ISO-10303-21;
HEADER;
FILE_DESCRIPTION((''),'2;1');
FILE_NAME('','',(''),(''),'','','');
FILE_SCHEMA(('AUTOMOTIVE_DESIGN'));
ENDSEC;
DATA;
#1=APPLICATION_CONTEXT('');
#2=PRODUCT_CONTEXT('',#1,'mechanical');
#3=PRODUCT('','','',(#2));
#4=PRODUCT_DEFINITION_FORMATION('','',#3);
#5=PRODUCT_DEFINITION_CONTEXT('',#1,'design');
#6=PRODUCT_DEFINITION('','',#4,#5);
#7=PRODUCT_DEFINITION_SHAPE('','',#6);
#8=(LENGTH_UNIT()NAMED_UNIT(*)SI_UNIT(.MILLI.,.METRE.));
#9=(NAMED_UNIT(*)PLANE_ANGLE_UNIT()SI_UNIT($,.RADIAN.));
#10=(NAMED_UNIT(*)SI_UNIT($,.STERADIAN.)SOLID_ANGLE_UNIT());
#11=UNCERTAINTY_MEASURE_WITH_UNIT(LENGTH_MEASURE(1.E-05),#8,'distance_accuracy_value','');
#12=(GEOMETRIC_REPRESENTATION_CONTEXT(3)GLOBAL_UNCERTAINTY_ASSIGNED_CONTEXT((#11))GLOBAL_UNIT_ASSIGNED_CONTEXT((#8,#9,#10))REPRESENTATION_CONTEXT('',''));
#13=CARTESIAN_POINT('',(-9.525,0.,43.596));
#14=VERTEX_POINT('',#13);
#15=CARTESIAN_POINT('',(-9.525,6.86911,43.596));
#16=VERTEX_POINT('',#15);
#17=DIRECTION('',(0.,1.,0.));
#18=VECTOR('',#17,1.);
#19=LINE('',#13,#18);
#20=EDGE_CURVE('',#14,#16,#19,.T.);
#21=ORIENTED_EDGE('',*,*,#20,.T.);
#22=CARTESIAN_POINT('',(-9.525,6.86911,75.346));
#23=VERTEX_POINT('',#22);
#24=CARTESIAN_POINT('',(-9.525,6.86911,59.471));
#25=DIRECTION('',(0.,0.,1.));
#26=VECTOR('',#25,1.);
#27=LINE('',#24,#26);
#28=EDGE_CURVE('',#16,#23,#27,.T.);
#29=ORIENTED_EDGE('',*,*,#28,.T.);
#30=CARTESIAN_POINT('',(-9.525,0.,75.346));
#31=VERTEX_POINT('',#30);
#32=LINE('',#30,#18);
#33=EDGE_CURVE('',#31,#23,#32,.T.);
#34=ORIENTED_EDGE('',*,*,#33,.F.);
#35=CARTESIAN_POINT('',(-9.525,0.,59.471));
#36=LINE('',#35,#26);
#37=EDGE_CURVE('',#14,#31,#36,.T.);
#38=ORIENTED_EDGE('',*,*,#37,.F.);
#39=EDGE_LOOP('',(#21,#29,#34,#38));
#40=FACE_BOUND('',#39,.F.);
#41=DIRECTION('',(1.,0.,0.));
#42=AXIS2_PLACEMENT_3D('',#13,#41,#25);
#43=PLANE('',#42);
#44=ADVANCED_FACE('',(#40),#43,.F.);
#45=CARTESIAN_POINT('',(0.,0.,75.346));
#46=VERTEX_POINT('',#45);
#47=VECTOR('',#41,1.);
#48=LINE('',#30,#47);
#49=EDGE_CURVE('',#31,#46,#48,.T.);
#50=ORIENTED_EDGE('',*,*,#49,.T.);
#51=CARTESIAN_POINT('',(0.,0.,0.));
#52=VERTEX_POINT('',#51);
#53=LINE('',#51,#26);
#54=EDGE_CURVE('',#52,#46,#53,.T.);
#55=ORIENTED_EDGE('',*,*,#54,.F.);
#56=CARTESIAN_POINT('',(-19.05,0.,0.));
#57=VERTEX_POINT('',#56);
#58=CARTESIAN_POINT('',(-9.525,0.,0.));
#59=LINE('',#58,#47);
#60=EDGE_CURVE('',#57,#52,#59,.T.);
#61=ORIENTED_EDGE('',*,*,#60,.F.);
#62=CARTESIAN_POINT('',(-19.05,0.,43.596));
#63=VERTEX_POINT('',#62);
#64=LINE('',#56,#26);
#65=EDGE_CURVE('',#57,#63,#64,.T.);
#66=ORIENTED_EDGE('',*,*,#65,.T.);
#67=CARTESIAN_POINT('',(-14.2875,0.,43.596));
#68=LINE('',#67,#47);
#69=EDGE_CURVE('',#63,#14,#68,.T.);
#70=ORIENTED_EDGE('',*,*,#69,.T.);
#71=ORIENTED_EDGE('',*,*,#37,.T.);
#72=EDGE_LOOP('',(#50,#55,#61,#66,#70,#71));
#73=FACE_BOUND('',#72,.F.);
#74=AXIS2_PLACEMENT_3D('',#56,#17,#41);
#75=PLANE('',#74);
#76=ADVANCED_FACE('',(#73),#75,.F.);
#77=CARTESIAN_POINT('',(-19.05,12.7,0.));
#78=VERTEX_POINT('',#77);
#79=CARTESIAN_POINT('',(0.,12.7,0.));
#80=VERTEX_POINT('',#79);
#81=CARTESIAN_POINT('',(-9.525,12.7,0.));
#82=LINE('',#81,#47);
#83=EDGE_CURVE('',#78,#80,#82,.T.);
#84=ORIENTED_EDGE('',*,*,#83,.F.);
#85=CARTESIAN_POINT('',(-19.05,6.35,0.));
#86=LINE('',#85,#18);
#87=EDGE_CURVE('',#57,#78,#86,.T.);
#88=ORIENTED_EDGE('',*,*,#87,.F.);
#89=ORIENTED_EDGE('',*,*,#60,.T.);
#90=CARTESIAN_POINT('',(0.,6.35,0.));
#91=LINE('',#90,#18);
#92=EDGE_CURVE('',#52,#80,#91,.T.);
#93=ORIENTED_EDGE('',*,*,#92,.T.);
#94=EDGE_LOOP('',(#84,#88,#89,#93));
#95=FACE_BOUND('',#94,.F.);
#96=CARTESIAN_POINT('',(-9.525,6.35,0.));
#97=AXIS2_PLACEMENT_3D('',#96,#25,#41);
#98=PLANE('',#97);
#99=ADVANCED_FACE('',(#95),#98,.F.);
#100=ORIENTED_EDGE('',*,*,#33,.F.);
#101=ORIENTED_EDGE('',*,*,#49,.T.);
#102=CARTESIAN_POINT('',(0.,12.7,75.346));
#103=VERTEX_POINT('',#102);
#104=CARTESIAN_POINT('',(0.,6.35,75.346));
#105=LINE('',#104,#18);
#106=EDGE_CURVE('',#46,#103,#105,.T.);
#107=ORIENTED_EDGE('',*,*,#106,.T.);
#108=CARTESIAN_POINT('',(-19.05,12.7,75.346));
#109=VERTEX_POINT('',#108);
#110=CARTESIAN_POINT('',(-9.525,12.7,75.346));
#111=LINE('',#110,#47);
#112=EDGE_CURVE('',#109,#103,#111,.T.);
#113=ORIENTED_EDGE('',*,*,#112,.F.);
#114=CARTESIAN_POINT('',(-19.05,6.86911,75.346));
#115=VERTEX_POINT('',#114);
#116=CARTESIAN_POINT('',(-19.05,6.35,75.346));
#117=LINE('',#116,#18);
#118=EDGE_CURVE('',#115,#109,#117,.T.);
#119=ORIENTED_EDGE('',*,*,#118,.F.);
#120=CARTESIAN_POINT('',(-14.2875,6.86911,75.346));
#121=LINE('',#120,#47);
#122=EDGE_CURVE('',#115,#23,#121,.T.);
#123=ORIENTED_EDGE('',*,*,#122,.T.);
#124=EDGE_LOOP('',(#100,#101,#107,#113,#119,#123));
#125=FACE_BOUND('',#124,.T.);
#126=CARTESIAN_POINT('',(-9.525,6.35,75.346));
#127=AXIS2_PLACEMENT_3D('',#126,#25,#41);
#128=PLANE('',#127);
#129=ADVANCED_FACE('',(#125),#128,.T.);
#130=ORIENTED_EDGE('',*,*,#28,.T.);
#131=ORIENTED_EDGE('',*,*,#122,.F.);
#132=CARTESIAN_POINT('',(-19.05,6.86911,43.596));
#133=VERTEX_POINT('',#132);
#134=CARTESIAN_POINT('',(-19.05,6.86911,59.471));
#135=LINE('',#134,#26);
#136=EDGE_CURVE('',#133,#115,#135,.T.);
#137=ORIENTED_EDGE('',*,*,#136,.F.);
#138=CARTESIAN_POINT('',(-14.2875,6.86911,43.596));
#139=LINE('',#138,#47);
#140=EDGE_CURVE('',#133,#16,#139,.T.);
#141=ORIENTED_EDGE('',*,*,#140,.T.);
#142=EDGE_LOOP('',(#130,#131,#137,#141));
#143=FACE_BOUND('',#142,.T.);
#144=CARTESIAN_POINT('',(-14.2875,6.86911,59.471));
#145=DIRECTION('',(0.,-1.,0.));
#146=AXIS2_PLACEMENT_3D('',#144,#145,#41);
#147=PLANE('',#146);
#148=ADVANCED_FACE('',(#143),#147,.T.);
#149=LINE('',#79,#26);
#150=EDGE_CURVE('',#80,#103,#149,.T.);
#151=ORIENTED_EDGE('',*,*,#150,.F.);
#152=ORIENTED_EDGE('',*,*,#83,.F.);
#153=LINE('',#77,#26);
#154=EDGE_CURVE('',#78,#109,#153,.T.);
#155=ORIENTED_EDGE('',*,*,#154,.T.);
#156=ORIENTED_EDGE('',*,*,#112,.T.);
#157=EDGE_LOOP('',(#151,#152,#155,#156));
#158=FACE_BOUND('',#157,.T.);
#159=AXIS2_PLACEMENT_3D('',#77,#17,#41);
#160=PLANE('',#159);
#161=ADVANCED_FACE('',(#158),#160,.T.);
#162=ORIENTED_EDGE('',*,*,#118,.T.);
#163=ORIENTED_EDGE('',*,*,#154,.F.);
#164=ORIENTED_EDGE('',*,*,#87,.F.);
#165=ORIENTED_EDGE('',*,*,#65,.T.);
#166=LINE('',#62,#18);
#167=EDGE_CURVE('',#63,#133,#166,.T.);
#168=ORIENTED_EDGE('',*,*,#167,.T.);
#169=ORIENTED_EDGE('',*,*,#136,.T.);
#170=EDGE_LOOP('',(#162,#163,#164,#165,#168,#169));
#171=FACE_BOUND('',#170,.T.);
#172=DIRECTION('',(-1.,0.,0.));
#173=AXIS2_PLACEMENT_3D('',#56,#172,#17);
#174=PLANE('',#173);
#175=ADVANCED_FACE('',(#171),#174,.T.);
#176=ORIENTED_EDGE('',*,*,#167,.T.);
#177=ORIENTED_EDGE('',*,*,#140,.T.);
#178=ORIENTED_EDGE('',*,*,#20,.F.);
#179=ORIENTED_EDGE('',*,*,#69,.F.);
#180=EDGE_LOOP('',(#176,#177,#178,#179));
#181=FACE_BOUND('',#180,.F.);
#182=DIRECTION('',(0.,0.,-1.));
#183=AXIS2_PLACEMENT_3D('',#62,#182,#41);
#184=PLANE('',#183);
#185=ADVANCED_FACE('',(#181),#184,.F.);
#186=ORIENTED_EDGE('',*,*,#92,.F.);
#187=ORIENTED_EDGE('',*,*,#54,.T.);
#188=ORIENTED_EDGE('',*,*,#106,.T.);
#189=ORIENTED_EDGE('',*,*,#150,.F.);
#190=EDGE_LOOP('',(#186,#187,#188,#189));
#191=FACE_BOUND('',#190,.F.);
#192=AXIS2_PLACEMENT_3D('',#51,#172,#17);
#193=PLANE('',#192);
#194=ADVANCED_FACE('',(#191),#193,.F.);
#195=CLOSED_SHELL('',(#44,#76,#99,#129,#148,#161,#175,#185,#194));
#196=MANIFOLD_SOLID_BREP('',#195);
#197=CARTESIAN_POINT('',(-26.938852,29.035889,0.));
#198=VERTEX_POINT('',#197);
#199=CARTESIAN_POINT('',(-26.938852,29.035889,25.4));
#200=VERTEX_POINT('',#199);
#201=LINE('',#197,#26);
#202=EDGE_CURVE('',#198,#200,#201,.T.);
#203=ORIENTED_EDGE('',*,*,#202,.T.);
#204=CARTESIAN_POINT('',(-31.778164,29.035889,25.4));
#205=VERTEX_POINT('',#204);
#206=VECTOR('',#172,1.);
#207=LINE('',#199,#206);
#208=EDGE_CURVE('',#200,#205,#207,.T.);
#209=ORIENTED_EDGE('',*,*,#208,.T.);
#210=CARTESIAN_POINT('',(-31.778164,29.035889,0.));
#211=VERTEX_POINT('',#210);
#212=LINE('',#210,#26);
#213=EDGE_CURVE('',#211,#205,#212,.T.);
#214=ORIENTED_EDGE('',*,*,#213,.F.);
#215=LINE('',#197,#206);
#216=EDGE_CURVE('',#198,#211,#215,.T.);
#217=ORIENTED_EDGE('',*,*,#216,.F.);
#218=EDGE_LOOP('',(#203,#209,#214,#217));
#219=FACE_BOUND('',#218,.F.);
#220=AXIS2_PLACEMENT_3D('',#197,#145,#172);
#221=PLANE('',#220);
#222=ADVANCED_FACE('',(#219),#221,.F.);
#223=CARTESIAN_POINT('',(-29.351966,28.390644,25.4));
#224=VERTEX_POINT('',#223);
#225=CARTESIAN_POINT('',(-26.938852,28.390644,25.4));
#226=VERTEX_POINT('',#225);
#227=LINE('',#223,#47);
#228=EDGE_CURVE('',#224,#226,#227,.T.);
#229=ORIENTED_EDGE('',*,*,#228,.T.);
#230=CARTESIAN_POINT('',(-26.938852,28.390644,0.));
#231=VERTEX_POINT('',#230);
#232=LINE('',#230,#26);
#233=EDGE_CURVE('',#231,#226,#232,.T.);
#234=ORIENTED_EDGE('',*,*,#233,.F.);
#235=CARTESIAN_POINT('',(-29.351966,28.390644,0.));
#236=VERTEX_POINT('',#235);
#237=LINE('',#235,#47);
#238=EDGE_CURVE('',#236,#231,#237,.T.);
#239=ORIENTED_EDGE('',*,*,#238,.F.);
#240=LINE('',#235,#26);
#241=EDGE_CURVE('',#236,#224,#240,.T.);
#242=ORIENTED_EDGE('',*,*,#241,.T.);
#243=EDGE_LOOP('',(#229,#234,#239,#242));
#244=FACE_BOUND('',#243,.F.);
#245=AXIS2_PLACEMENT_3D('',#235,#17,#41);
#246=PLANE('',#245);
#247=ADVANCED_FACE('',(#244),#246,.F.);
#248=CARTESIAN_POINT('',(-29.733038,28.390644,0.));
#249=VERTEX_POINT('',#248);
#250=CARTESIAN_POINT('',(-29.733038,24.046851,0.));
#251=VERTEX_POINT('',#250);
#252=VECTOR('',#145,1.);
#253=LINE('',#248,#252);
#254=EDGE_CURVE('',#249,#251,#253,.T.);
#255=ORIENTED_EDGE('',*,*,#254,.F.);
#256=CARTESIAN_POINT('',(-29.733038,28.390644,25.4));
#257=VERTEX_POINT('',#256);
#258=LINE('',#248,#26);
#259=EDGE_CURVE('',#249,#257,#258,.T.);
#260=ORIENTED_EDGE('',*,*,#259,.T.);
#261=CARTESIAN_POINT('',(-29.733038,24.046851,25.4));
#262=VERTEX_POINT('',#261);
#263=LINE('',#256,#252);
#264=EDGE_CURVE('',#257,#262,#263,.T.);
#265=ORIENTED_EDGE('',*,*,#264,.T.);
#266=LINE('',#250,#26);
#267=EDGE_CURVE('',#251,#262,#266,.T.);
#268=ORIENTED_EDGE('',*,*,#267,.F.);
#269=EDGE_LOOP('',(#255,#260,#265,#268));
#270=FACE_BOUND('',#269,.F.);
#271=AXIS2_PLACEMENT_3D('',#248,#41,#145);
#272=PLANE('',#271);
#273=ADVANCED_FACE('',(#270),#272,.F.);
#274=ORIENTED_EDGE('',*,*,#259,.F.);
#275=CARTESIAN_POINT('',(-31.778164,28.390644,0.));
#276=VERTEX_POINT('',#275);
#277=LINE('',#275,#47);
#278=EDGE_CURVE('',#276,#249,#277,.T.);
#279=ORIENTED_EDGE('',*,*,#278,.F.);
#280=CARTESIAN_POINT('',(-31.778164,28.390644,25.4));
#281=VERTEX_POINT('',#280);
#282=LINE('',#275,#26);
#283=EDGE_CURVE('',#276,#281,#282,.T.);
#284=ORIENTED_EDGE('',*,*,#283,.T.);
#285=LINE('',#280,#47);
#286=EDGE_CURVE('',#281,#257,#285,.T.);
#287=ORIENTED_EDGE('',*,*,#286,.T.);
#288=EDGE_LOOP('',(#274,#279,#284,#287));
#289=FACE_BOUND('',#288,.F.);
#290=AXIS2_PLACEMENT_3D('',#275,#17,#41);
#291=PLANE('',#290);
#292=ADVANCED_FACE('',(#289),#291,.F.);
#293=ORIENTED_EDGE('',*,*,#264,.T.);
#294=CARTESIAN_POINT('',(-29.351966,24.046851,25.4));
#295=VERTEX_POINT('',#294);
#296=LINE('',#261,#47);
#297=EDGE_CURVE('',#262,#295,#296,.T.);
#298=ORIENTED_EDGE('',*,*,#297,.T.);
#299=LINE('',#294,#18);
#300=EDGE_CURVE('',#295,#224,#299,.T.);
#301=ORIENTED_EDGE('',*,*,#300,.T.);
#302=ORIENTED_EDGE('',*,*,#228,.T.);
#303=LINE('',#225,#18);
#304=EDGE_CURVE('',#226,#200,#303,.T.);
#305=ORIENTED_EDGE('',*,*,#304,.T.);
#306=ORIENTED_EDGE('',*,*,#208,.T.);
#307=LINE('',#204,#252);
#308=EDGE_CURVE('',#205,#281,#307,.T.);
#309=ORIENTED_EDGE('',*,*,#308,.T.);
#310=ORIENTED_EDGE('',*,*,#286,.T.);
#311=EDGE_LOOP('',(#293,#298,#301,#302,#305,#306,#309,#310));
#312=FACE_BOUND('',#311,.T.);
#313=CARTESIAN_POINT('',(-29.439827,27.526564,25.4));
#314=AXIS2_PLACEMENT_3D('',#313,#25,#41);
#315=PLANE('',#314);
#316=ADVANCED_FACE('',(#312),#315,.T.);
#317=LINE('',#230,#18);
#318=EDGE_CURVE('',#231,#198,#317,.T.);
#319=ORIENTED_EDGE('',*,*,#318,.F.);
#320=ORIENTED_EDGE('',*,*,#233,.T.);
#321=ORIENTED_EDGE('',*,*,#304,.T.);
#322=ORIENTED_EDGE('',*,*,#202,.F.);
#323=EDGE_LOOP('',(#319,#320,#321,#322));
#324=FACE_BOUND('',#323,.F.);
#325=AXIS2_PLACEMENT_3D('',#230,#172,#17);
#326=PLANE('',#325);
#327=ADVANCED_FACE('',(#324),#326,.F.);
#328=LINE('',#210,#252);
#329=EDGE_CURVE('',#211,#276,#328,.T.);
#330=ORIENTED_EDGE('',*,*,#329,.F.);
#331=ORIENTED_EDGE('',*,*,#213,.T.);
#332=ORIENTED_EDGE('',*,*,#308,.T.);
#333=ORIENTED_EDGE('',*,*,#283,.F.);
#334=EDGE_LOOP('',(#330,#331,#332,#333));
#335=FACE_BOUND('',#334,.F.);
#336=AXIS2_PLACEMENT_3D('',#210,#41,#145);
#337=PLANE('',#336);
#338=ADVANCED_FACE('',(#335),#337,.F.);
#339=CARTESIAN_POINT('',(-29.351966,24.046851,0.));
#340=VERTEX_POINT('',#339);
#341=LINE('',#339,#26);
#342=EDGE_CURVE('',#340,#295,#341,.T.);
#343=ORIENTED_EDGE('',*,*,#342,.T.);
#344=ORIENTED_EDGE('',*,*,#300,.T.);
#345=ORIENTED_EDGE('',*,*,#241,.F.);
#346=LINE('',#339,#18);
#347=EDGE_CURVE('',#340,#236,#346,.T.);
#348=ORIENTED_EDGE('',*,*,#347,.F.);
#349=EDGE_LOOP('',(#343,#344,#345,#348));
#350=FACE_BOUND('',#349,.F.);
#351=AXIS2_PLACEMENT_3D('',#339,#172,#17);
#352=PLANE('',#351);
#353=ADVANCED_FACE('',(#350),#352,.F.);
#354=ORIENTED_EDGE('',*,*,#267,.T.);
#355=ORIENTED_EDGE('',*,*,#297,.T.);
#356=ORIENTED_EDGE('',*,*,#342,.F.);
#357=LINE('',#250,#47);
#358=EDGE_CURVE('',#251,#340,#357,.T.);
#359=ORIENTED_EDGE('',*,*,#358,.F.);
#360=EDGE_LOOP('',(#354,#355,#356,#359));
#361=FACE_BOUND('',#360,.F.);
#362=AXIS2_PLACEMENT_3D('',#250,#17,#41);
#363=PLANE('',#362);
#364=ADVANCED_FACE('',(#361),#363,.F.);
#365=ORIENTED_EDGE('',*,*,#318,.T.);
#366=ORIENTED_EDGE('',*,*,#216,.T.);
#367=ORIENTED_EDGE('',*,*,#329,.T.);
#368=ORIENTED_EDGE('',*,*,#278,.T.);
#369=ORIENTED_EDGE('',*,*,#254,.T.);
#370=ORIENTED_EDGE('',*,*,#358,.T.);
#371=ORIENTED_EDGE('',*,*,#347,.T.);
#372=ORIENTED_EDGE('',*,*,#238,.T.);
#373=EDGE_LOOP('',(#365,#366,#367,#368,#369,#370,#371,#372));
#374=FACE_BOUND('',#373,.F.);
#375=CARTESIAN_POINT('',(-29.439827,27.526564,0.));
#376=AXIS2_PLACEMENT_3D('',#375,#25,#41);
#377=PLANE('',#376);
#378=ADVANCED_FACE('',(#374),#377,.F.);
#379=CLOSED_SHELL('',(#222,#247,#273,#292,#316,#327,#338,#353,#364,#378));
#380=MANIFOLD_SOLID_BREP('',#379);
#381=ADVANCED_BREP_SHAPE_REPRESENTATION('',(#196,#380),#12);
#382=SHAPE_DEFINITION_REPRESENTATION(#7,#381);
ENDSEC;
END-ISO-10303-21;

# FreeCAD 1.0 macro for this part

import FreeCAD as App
import Part
import Sketcher

V = App.Vector
Q = App.Units.Quantity

doc = App.newDocument("Part")
body = doc.addObject("PartDesign::Body", "Body")

sketch1 = doc.addObject("Sketcher::SketchObject", "Sketch")
body.addObject(sketch1)
sketch1.AttachmentSupport = (doc.XY_Plane, [""])
sketch1.MapMode = "FlatFace"
sketch1.addGeometry([
    Part.LineSegment(V(-29.351966, 28.390644, 0), V(-26.938852, 28.390644, 0)),
    Part.LineSegment(V(-26.938852, 28.390644, 0), V(-26.938852, 29.035889, 0)),
    Part.LineSegment(V(-26.938852, 29.035889, 0), V(-31.778164, 29.035889, 0)),
    Part.LineSegment(V(-31.778164, 29.035889, 0), V(-31.778164, 28.390644, 0)),
    Part.LineSegment(V(-31.778164, 28.390644, 0), V(-29.733038, 28.390644, 0)),
    Part.LineSegment(V(-29.733038, 28.390644, 0), V(-29.733038, 24.046851, 0)),
    Part.LineSegment(V(-29.733038, 24.046851, 0), V(-29.351966, 24.046851, 0)),
    Part.LineSegment(V(-29.351966, 24.046851, 0), V(-29.351966, 28.390644, 0)),
], False)
sketch1.addConstraint([
    Sketcher.Constraint("Coincident", 0, 2, 1, 1),
    Sketcher.Constraint("Coincident", 1, 2, 2, 1),
    Sketcher.Constraint("Coincident", 2, 2, 3, 1),
    Sketcher.Constraint("Coincident", 3, 2, 4, 1),
    Sketcher.Constraint("Coincident", 4, 2, 5, 1),
    Sketcher.Constraint("Coincident", 5, 2, 6, 1),
    Sketcher.Constraint("Coincident", 6, 2, 7, 1),
    Sketcher.Constraint("Coincident", 7, 2, 0, 1),
    Sketcher.Constraint("Horizontal", 0),
    Sketcher.Constraint("Vertical", 1),
    Sketcher.Constraint("Horizontal", 2),
    Sketcher.Constraint("Vertical", 3),
    Sketcher.Constraint("Horizontal", 4),
    Sketcher.Constraint("Vertical", 5),
    Sketcher.Constraint("Horizontal", 6),
    Sketcher.Constraint("Vertical", 7),
    Sketcher.Constraint("Horizontal", 0, 2, 3, 2),
    Sketcher.Constraint("DistanceX", 2, 2, 2, 1, Q("4.839312 mm")),
    Sketcher.Constraint("DistanceX", 6, 1, 6, 2, Q("0.381072 mm")),
    Sketcher.Constraint("DistanceX", 0, 1, 0, 2, Q("2.413114 mm")),
    Sketcher.Constraint("DistanceY", 1, 1, 1, 2, Q("0.645245 mm")),
    Sketcher.Constraint("DistanceY", 5, 2, 5, 1, Q("4.343793 mm")),
    Sketcher.Constraint("DistanceY", -1, 1, 1, 2, Q("29.035889 mm")),
    Sketcher.Constraint("DistanceX", 4, 2, -1, 1, Q("29.733038 mm")),
])
pad1 = doc.addObject("PartDesign::Pad", "Pad")
body.addObject(pad1)
pad1.Profile = sketch1
pad1.Length = Q("1 in")
body2 = doc.addObject("PartDesign::Body", "Body001")

sketch2 = doc.addObject("Sketcher::SketchObject", "Sketch001")
body2.addObject(sketch2)
sketch2.AttachmentSupport = (doc.getObject("XY_Plane001"), [""])
sketch2.MapMode = "FlatFace"
sketch2.addGeometry([
    Part.LineSegment(V(-19.05, 12.7, 0), V(-19.05, 0, 0)),
    Part.LineSegment(V(-19.05, 0, 0), V(0, 0, 0)),
    Part.LineSegment(V(0, 0, 0), V(0, 12.7, 0)),
    Part.LineSegment(V(0, 12.7, 0), V(-19.05, 12.7, 0)),
], False)
sketch2.addConstraint([
    Sketcher.Constraint("Coincident", 0, 2, 1, 1),
    Sketcher.Constraint("Coincident", 1, 2, 2, 1),
    Sketcher.Constraint("Coincident", 2, 2, 3, 1),
    Sketcher.Constraint("Coincident", 3, 2, 0, 1),
    Sketcher.Constraint("Vertical", 0),
    Sketcher.Constraint("Horizontal", 1),
    Sketcher.Constraint("Vertical", 2),
    Sketcher.Constraint("Horizontal", 3),
    Sketcher.Constraint("Coincident", 1, 2, -1, 1),
    Sketcher.Constraint("DistanceY", 0, 2, 0, 1, Q("0.5 in")),
    Sketcher.Constraint("DistanceX", 1, 1, 1, 2, Q("0.75 in")),
])
pad2 = doc.addObject("PartDesign::Pad", "Pad001")
body2.addObject(pad2)
pad2.Profile = sketch2
pad2.Length = 75.346

sketch3 = doc.addObject("Sketcher::SketchObject", "Sketch002")
body2.addObject(sketch3)
sketch3.AttachmentSupport = (doc.getObject("XZ_Plane001"), [""])
sketch3.MapMode = "FlatFace"
sketch3.addGeometry([
    Part.LineSegment(V(-19.05, 75.346, 0), V(-19.05, 43.596, 0)),
    Part.LineSegment(V(-19.05, 43.596, 0), V(-9.525, 43.596, 0)),
    Part.LineSegment(V(-9.525, 43.596, 0), V(-9.525, 75.346, 0)),
    Part.LineSegment(V(-9.525, 75.346, 0), V(-19.05, 75.346, 0)),
], False)
sketch3.addConstraint([
    Sketcher.Constraint("Coincident", 0, 2, 1, 1),
    Sketcher.Constraint("Coincident", 1, 2, 2, 1),
    Sketcher.Constraint("Coincident", 2, 2, 3, 1),
    Sketcher.Constraint("Coincident", 3, 2, 0, 1),
    Sketcher.Constraint("Vertical", 0),
    Sketcher.Constraint("Horizontal", 1),
    Sketcher.Constraint("Vertical", 2),
    Sketcher.Constraint("Horizontal", 3),
    Sketcher.Constraint("DistanceY", 0, 2, 0, 1, Q("1.25 in")),
    Sketcher.Constraint("DistanceX", 1, 1, 1, 2, Q("0.375 in")),
    Sketcher.Constraint("DistanceX", 0, 2, -1, 1, Q("0.75 in")),
    Sketcher.Constraint("DistanceY", -1, 1, 0, 2, Q("43.596 mm")),
])
pocket1 = doc.addObject("PartDesign::Pocket", "Pocket")
body2.addObject(pocket1)
pocket1.Profile = sketch3
pocket1.Length = 6.86911

doc.recompute()
